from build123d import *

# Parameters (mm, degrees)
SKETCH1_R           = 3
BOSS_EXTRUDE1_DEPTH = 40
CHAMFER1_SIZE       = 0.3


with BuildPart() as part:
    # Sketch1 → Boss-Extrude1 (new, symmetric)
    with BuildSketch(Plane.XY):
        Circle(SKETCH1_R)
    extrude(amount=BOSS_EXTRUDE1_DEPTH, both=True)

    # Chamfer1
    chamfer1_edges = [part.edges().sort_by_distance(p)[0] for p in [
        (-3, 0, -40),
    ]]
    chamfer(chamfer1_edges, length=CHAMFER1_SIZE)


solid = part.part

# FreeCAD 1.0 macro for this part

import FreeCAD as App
import Part
import Sketcher
from FreeCAD import Vector
Q = App.Units.Quantity


def edges_at(feature, points):
    """Names of the edges that pass closest to the given points."""
    edges = feature.Shape.Edges
    near = lambda p: min(range(len(edges)), key=lambda i: edges[i].distToShape(Part.Vertex(*p))[0])
    return sorted({f"Edge{near(p) + 1}" for p in points})

doc = App.newDocument("Part")
params = doc.addObject("Spreadsheet::Sheet", "Params")
for row, (alias, value) in enumerate([
    ("sketch1_diameter", "6 mm"),
    ("pad1_length", "80 mm"),
    ("chamfer_size", "0.3 mm"),
], start=1):
    params.set(f"A{row}", alias)
    params.set(f"B{row}", "=" + value)
    params.setAlias(f"B{row}", alias)

body = doc.addObject("PartDesign::Body", "Body")

# Sketch on XY plane
sketch1 = body.newObject("Sketcher::SketchObject", "Sketch")
sketch1.AttachmentSupport = (doc.getObject("XY_Plane"), [""])
sketch1.MapMode = "FlatFace"
sketch1.addGeometry(Part.Circle(Vector(0, 0, 0), Vector(0, 0, 1), 3), False)
sketch1.addConstraint([
    Sketcher.Constraint("Coincident", 0, 3, -1, 1),
    Sketcher.Constraint("Diameter", 0, Q("6 mm")),
])
sketch1.setExpression("Constraints[1]", "Params.sketch1_diameter")
pad1 = body.newObject("PartDesign::Pad", "Pad")
pad1.Profile = sketch1
pad1.setExpression("Length", "Params.pad1_length")
pad1.Midplane = True
doc.recompute()

chamfer = body.newObject("PartDesign::Chamfer", "Chamfer")
chamfer.Base = (pad1, edges_at(pad1, [(-3, 0, -40)]))
chamfer.setExpression("Size", "Params.chamfer_size")

doc.recompute()
